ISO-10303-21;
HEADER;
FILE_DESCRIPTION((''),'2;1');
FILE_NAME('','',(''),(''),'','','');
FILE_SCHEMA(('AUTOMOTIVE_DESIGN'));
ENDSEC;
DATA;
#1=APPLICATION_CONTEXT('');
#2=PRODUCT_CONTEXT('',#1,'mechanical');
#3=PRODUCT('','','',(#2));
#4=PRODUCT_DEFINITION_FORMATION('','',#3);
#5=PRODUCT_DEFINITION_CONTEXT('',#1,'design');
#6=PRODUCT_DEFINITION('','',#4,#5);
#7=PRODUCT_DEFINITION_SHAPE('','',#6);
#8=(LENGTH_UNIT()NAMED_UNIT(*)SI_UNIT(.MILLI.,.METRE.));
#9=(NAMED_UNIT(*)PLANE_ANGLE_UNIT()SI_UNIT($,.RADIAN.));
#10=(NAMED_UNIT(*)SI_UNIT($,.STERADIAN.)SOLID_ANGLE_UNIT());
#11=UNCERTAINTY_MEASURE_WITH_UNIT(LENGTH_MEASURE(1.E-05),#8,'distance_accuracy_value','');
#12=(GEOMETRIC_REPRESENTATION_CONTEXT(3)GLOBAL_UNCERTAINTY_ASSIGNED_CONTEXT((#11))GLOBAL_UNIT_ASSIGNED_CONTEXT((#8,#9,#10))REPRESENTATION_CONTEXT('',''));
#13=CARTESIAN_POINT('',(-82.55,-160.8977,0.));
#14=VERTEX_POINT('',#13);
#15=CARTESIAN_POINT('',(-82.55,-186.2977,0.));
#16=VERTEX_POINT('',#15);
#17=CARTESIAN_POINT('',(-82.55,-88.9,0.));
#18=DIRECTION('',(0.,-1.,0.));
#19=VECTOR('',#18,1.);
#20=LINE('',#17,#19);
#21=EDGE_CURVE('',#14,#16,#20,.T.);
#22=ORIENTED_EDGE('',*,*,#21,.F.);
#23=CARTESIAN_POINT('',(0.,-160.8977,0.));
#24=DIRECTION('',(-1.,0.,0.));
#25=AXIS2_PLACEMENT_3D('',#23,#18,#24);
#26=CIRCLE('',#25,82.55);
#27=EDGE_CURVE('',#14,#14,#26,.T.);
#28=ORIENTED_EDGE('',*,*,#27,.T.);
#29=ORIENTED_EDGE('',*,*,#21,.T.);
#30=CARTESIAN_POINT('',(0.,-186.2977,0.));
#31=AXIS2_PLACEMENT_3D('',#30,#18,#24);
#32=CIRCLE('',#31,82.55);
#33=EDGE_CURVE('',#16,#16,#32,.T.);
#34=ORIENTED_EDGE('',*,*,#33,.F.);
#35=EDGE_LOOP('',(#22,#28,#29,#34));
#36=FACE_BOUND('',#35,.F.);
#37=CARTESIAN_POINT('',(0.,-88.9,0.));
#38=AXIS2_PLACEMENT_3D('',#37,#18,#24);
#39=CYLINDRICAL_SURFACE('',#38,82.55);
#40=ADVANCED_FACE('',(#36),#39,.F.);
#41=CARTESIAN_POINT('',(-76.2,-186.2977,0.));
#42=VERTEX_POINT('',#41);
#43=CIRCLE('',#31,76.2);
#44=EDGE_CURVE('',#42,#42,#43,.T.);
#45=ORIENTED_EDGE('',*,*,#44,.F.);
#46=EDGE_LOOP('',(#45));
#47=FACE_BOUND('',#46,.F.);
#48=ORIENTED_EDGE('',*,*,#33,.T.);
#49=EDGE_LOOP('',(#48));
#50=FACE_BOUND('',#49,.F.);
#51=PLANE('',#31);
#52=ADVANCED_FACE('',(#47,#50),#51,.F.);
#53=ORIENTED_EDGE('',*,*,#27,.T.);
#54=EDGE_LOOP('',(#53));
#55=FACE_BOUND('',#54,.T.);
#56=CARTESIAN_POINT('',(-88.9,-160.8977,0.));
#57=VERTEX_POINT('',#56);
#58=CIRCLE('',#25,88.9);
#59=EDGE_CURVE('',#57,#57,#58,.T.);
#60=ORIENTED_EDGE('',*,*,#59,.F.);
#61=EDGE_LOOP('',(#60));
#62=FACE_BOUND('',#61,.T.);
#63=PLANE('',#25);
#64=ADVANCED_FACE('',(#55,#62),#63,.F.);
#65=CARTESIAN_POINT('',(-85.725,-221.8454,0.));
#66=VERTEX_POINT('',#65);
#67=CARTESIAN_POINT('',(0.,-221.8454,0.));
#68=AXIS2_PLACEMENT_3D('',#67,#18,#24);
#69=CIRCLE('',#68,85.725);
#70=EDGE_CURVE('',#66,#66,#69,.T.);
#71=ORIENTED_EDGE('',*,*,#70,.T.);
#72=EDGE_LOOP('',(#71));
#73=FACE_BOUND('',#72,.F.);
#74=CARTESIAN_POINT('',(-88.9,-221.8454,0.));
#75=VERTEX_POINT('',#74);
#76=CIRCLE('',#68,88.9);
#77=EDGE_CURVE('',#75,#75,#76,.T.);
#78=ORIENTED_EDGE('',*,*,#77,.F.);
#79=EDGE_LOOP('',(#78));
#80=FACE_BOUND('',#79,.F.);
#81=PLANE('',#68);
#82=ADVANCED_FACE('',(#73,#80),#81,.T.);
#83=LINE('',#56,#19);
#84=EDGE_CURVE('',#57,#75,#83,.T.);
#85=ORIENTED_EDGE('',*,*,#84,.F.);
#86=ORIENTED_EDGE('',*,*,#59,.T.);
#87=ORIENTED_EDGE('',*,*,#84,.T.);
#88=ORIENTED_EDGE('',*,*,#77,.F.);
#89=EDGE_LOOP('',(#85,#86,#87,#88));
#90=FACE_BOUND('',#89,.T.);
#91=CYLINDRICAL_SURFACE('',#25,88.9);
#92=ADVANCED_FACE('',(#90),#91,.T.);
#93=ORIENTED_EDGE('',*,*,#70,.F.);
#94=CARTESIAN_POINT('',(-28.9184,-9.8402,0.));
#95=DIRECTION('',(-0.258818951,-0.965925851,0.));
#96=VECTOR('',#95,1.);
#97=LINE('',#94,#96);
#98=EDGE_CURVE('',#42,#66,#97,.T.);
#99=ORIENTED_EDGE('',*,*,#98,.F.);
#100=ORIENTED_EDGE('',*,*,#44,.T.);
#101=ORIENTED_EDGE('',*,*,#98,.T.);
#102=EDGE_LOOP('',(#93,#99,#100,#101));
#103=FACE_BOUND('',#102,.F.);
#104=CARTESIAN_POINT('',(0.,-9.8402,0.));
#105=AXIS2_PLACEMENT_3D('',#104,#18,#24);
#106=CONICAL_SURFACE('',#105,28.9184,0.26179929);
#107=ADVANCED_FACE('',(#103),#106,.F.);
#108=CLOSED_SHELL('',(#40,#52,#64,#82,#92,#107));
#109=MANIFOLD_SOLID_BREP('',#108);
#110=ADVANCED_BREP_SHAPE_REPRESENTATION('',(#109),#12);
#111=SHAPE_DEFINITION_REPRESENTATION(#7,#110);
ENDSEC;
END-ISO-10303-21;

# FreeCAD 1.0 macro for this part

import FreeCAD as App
import Part
import Sketcher
Q = App.Units.Quantity

doc = App.newDocument("Part")
body = doc.addObject("PartDesign::Body", "Body")

# Sketch on XY plane
sketch1 = body.newObject("Sketcher::SketchObject", "Sketch")
sketch1.AttachmentSupport = (doc.getObject("XY_Plane"), [""])
sketch1.MapMode = "FlatFace"
sketch1.addGeometry(Part.LineSegment(App.Vector(-85.725, -221.8454, 0), App.Vector(-76.200024, -186.297693, 0)), False)
sketch1.addGeometry(Part.LineSegment(App.Vector(-76.2, -186.2977, 0), App.Vector(-82.55, -186.2977, 0)), False)
sketch1.addGeometry(Part.LineSegment(App.Vector(-82.55, -186.2977, 0), App.Vector(-82.55, -160.8977, 0)), False)
sketch1.addGeometry(Part.LineSegment(App.Vector(-82.55, -160.8977, 0), App.Vector(-88.9, -160.8977, 0)), False)
sketch1.addGeometry(Part.LineSegment(App.Vector(-88.9, -160.8977, 0), App.Vector(-88.9, -221.8454, 0)), False)
sketch1.addGeometry(Part.LineSegment(App.Vector(-88.9, -221.8454, 0), App.Vector(-85.725, -221.8454, 0)), False)
sketch1.addConstraint(Sketcher.Constraint("Coincident", 0, 2, 1, 1))
sketch1.addConstraint(Sketcher.Constraint("Coincident", 1, 2, 2, 1))
sketch1.addConstraint(Sketcher.Constraint("Coincident", 2, 2, 3, 1))
sketch1.addConstraint(Sketcher.Constraint("Coincident", 3, 2, 4, 1))
sketch1.addConstraint(Sketcher.Constraint("Coincident", 4, 2, 5, 1))
sketch1.addConstraint(Sketcher.Constraint("Coincident", 5, 2, 0, 1))
sketch1.addConstraint(Sketcher.Constraint("Horizontal", 1))
sketch1.addConstraint(Sketcher.Constraint("Vertical", 2))
sketch1.addConstraint(Sketcher.Constraint("Horizontal", 3))
sketch1.addConstraint(Sketcher.Constraint("Vertical", 4))
sketch1.addConstraint(Sketcher.Constraint("Horizontal", 5))
sketch1.addConstraint(Sketcher.Constraint("Equal", 1, 3))
sketch1.addConstraint(Sketcher.Constraint("DistanceY", 2, 1, 2, 2, Q("1 in")))
sketch1.addConstraint(Sketcher.Constraint("DistanceX", 1, 2, 1, 1, Q("0.25 in")))
sketch1.addConstraint(Sketcher.Constraint("DistanceX", 5, 1, 5, 2, Q("0.125 in")))
sketch1.addConstraint(Sketcher.Constraint("DistanceX", 0, 2, -1, 1, Q("3 in")))
sketch1.addConstraint(Sketcher.Constraint("Angle", 0, Q("75 deg")))
sketch1.addConstraint(Sketcher.Constraint("DistanceY", 0, 2, -1, 1, 186.2977))
revolution = body.newObject("PartDesign::Revolution", "Revolution")
revolution.Profile = sketch1
revolution.ReferenceAxis = (sketch1, ["V_Axis"])
revolution.Angle = 360

doc.recompute()
